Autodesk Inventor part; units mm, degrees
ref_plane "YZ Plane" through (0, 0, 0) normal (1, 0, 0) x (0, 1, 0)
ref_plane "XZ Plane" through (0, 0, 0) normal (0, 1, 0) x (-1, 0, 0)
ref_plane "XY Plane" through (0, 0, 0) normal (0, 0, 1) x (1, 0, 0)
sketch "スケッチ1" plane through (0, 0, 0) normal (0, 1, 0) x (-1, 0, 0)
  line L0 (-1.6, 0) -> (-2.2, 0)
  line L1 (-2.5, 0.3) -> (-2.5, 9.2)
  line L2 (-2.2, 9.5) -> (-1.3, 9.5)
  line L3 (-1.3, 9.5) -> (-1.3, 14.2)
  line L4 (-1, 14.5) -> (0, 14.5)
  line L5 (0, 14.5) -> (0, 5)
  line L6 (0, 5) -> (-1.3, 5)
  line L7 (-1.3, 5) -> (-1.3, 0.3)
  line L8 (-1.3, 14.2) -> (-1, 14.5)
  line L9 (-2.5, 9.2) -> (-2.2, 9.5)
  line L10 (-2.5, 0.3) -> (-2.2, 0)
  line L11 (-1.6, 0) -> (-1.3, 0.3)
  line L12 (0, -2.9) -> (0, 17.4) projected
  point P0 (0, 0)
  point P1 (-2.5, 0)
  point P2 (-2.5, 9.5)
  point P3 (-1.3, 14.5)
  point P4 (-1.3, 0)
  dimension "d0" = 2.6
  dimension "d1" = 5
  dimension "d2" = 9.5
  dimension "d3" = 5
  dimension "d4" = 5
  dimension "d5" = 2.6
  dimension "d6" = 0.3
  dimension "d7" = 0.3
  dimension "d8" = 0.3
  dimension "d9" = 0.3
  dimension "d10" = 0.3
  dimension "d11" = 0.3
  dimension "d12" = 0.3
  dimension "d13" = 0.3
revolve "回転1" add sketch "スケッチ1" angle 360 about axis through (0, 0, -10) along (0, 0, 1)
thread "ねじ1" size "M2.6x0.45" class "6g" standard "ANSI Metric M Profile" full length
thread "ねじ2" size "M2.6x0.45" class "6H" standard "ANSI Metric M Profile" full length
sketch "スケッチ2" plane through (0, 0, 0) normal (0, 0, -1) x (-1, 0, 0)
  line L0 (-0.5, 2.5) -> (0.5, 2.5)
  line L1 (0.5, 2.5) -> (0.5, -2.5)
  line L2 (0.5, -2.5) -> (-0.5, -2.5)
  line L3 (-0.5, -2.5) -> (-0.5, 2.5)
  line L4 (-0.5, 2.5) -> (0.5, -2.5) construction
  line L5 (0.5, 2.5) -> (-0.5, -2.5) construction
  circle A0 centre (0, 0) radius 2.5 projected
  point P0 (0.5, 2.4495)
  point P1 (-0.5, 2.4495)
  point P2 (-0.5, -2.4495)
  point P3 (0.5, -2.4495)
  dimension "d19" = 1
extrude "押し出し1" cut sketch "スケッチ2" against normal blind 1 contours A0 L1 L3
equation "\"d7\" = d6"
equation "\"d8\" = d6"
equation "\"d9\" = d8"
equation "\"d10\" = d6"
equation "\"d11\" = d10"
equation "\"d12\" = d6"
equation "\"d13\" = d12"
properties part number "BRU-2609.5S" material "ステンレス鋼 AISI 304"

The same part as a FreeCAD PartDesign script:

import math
import FreeCAD as App
import Part
import Sketcher
from FreeCAD import Vector

doc = App.newDocument("Part")
body = doc.addObject("PartDesign::Body", "Body")

# Sketch on XZ plane
sketch1 = body.newObject("Sketcher::SketchObject", "Sketch")
sketch1.AttachmentSupport = (doc.getObject("XZ_Plane"), [""])
sketch1.MapMode = "FlatFace"
sketch1.addGeometry([
    Part.LineSegment(Vector(2.2, 0, 0), Vector(1.6, 0, 0)),  # 0
    Part.LineSegment(Vector(1.6, 0, 0), Vector(1.3, 0.3, 0)),  # 1
    Part.LineSegment(Vector(1.3, 0.3, 0), Vector(1.3, 5, 0)),  # 2
    Part.LineSegment(Vector(1.3, 5, 0), Vector(0, 5, 0)),  # 3
    Part.LineSegment(Vector(0, 5, 0), Vector(0, 14.5, 0)),  # 4
    Part.LineSegment(Vector(0, 14.5, 0), Vector(1, 14.5, 0)),  # 5
    Part.LineSegment(Vector(1, 14.5, 0), Vector(1.3, 14.2, 0)),  # 6
    Part.LineSegment(Vector(1.3, 14.2, 0), Vector(1.3, 9.5, 0)),  # 7
    Part.LineSegment(Vector(1.3, 9.5, 0), Vector(2.2, 9.5, 0)),  # 8
    Part.LineSegment(Vector(2.2, 9.5, 0), Vector(2.5, 9.2, 0)),  # 9
    Part.LineSegment(Vector(2.5, 9.2, 0), Vector(2.5, 0.3, 0)),  # 10
    Part.LineSegment(Vector(2.5, 0.3, 0), Vector(2.2, 0, 0)),  # 11
], False)
sketch1.addConstraint([
    Sketcher.Constraint("Coincident", 0, 2, 1, 1),
    Sketcher.Constraint("Coincident", 1, 2, 2, 1),
    Sketcher.Constraint("Coincident", 2, 2, 3, 1),
    Sketcher.Constraint("Coincident", 3, 2, 4, 1),
    Sketcher.Constraint("Coincident", 4, 2, 5, 1),
    Sketcher.Constraint("Coincident", 5, 2, 6, 1),
    Sketcher.Constraint("Coincident", 6, 2, 7, 1),
    Sketcher.Constraint("Coincident", 7, 2, 8, 1),
    Sketcher.Constraint("Coincident", 8, 2, 9, 1),
    Sketcher.Constraint("Coincident", 9, 2, 10, 1),
    Sketcher.Constraint("Coincident", 10, 2, 11, 1),
    Sketcher.Constraint("Coincident", 11, 2, 0, 1),
    Sketcher.Constraint("Horizontal", 0),
    Sketcher.Constraint("Vertical", 2),
    Sketcher.Constraint("Horizontal", 3),
    Sketcher.Constraint("Vertical", 4),
    Sketcher.Constraint("Horizontal", 5),
    Sketcher.Constraint("Vertical", 7),
    Sketcher.Constraint("Horizontal", 8),
    Sketcher.Constraint("Vertical", 10),
    Sketcher.Constraint("PointOnObject", 0, 2, -1),
    Sketcher.Constraint("PointOnObject", 3, 2, -2),
    Sketcher.Constraint("Parallel", 1, 6),
    Sketcher.Constraint("Parallel", 6, 9),
    Sketcher.Constraint("Perpendicular", 9, 11),
    Sketcher.Constraint("Horizontal", 1, 2, 10, 2),
    Sketcher.Constraint("Vertical", 2, 2, 6, 2),
    Sketcher.Constraint("Vertical", 8, 2, 11, 2),
    Sketcher.Constraint("Equal", 2, 7),
    Sketcher.Constraint("Equal", 1, 6),
    Sketcher.Constraint("Equal", 6, 9),
    Sketcher.Constraint("DistanceY", 4, 1, 4, 2, 9.5),
    Sketcher.Constraint("DistanceY", -1, 1, 2, 2, 5.0),
    Sketcher.Constraint("DistanceY", -1, 1, 1, 2, 0.3),
    Sketcher.Constraint("DistanceX", 5, 1, 5, 2, 1.0),
    Sketcher.Constraint("DistanceX", 0, 2, 0, 1, 0.6),
])
revolution = body.newObject("PartDesign::Revolution", "Revolution")
revolution.Profile = sketch1
revolution.ReferenceAxis = (sketch1, ["V_Axis"])
revolution.Angle = 360

# Sketch on XY plane
sketch2 = body.newObject("Sketcher::SketchObject", "Sketch001")
sketch2.AttachmentSupport = (doc.getObject("XY_Plane"), [""])
sketch2.MapMode = "FlatFace"
sketch2.addGeometry([
    Part.ArcOfCircle(Part.Circle(Vector(0, 0, 0), Vector(0, 0, 1), 2.5), math.radians(78), math.radians(102)),
    Part.LineSegment(Vector(0.5, 2.4, 0), Vector(0.5, -2.4, 0)),
    Part.ArcOfCircle(Part.Circle(Vector(0, 0, 0), Vector(0, 0, 1), 2.5), math.radians(-102), math.radians(-78)),
    Part.LineSegment(Vector(-0.5, -2.4, 0), Vector(-0.5, 2.4, 0)),
], False)
sketch2.addConstraint([
    Sketcher.Constraint("Coincident", 0, 1, 1, 1),
    Sketcher.Constraint("Coincident", 1, 2, 2, 2),
    Sketcher.Constraint("Coincident", 2, 1, 3, 1),
    Sketcher.Constraint("Coincident", 3, 2, 0, 2),
    Sketcher.Constraint("Vertical", 1),
    Sketcher.Constraint("Vertical", 3),
    Sketcher.Constraint("Coincident", 0, 3, -1, 1),
    Sketcher.Constraint("Coincident", 2, 3, -1, 1),
    Sketcher.Constraint("Equal", 0, 2),
    Sketcher.Constraint("Horizontal", 1, 2, 2, 1),
    Sketcher.Constraint("DistanceX", 2, 1, 1, 2, 1.0),
    Sketcher.Constraint("Radius", 0, 2.5),
])
pocket1 = body.newObject("PartDesign::Pocket", "Pocket")
pocket1.Profile = sketch2
pocket1.Length = 1
pocket1.Reversed = True

doc.recompute()
